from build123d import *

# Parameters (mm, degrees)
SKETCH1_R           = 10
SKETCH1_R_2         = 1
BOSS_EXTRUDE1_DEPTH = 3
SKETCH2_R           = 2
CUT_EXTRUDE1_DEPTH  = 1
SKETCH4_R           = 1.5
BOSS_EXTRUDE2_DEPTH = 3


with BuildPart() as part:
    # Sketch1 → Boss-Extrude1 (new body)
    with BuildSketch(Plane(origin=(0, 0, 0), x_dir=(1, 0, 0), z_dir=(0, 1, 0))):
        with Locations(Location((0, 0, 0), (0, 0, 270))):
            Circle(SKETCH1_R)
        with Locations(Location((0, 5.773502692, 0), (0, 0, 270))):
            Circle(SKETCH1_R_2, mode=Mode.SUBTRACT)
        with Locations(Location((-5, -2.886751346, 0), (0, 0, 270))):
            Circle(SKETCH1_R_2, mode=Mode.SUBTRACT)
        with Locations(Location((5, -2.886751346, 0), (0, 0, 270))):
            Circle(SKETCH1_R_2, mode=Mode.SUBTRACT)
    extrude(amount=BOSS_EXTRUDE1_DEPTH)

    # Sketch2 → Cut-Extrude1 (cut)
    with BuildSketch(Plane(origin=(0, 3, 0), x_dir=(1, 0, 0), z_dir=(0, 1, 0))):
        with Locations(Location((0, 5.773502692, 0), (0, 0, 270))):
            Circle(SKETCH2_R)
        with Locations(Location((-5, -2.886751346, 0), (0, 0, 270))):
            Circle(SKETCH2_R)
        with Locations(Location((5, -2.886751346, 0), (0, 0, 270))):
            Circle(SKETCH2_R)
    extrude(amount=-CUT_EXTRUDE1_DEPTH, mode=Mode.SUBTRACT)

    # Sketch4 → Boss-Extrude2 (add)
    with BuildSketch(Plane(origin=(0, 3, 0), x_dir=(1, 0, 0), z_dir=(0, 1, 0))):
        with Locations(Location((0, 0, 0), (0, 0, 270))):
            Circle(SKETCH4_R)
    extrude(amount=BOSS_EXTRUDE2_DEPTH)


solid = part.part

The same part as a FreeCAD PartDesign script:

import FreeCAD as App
import Part
import Sketcher
from FreeCAD import Vector
Q = App.Units.Quantity

doc = App.newDocument("Part")
params = doc.addObject("Spreadsheet::Sheet", "Params")
for row, (alias, value) in enumerate([
    ("sketch1_diameter", "20 mm"),
    ("sketch1_diameter2", "2 mm"),
    ("pad1_length", "3 mm"),
    ("sketch2_diameter", "4 mm"),
    ("pocket1_length", "1 mm"),
    ("sketch3_diameter", "3 mm"),
    ("pad2_length", "3 mm"),
], start=1):
    params.set(f"A{row}", alias)
    params.set(f"B{row}", "=" + value)
    params.setAlias(f"B{row}", alias)

body = doc.addObject("PartDesign::Body", "Body")

# Sketch on XZ plane
sketch1 = body.newObject("Sketcher::SketchObject", "Sketch")
sketch1.AttachmentSupport = (doc.getObject("XZ_Plane"), [""])
sketch1.MapMode = "FlatFace"
sketch1.addGeometry([
    Part.Circle(Vector(0, 0, 0), Vector(0, 0, 1), 10),
    Part.Circle(Vector(0, -5.8, 0), Vector(0, 0, 1), 1),
    Part.Circle(Vector(-5, 2.9, 0), Vector(0, 0, 1), 1),
    Part.Circle(Vector(5, 2.9, 0), Vector(0, 0, 1), 1),
], False)
sketch1.addConstraint([
    Sketcher.Constraint("Coincident", 0, 3, -1, 1),
    Sketcher.Constraint("Equal", 1, 2),
    Sketcher.Constraint("Equal", 2, 3),
    Sketcher.Constraint("Symmetric", 2, 3, 3, 3, -2),
    Sketcher.Constraint("PointOnObject", 1, 3, -2),
    Sketcher.Constraint("Diameter", 0, Q("20 mm")),
    Sketcher.Constraint("Diameter", 1, Q("2 mm")),
    Sketcher.Constraint("DistanceX", 2, 3, -1, 1, Q("5 mm")),
    Sketcher.Constraint("DistanceY", -1, 1, 2, 3, Q("2.886751 mm")),
    Sketcher.Constraint("DistanceY", 1, 3, -1, 1, Q("5.773503 mm")),
])
sketch1.setExpression("Constraints[5]", "Params.sketch1_diameter")
sketch1.setExpression("Constraints[6]", "Params.sketch1_diameter2")
pad1 = body.newObject("PartDesign::Pad", "Pad")
pad1.Profile = sketch1
pad1.setExpression("Length", "Params.pad1_length")
pad1.Reversed = True

# Sketch on XZ plane
sketch2 = body.newObject("Sketcher::SketchObject", "Sketch001")
sketch2.AttachmentSupport = (doc.getObject("XZ_Plane"), [""])
sketch2.MapMode = "FlatFace"
sketch2.AttachmentOffset = App.Placement(Vector(0, 0, -3), App.Rotation())
sketch2.addGeometry([
    Part.Circle(Vector(0, -5.8, 0), Vector(0, 0, 1), 2),
    Part.Circle(Vector(-5, 2.9, 0), Vector(0, 0, 1), 2),
    Part.Circle(Vector(5, 2.9, 0), Vector(0, 0, 1), 2),
], False)
sketch2.addConstraint([
    Sketcher.Constraint("Equal", 0, 1),
    Sketcher.Constraint("Equal", 1, 2),
    Sketcher.Constraint("Symmetric", 1, 3, 2, 3, -2),
    Sketcher.Constraint("PointOnObject", 0, 3, -2),
    Sketcher.Constraint("Diameter", 0, Q("4 mm")),
    Sketcher.Constraint("DistanceX", 1, 3, -1, 1, Q("5 mm")),
    Sketcher.Constraint("DistanceY", -1, 1, 1, 3, Q("2.886751 mm")),
    Sketcher.Constraint("DistanceY", 0, 3, -1, 1, Q("5.773503 mm")),
])
sketch2.setExpression("Constraints[4]", "Params.sketch2_diameter")
pocket1 = body.newObject("PartDesign::Pocket", "Pocket")
pocket1.Profile = sketch2
pocket1.setExpression("Length", "Params.pocket1_length")
pocket1.Reversed = True

# Sketch on XZ plane
sketch3 = body.newObject("Sketcher::SketchObject", "Sketch002")
sketch3.AttachmentSupport = (doc.getObject("XZ_Plane"), [""])
sketch3.MapMode = "FlatFace"
sketch3.AttachmentOffset = App.Placement(Vector(0, 0, -3), App.Rotation())
sketch3.addGeometry(Part.Circle(Vector(0, 0, 0), Vector(0, 0, 1), 1.5), False)
sketch3.addConstraint([
    Sketcher.Constraint("Coincident", 0, 3, -1, 1),
    Sketcher.Constraint("Diameter", 0, Q("3 mm")),
])
sketch3.setExpression("Constraints[1]", "Params.sketch3_diameter")
pad2 = body.newObject("PartDesign::Pad", "Pad001")
pad2.Profile = sketch3
pad2.setExpression("Length", "Params.pad2_length")
pad2.Reversed = True

doc.recompute()
